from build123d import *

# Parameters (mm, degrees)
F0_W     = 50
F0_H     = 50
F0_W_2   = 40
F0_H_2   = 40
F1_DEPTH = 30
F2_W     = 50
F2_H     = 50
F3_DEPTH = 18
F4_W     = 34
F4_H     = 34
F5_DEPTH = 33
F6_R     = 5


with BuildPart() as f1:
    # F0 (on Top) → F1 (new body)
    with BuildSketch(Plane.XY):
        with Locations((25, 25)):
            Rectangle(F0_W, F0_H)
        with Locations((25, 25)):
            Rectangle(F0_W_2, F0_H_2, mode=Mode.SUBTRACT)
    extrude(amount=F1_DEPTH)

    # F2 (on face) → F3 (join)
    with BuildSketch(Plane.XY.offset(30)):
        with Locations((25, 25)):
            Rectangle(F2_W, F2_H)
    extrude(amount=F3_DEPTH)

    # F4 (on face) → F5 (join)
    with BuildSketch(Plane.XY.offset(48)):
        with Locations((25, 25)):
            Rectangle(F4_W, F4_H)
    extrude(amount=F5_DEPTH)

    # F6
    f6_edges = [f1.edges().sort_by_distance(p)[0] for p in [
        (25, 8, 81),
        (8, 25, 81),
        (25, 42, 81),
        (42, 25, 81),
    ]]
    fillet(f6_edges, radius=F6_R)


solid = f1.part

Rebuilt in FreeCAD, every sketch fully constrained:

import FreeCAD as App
import Part
import Sketcher
Q = App.Units.Quantity


def edges_at(feature, points):
    """Names of the edges that pass closest to the given points."""
    edges = feature.Shape.Edges
    near = lambda p: min(range(len(edges)), key=lambda i: edges[i].distToShape(Part.Vertex(*p))[0])
    return sorted({f"Edge{near(p) + 1}" for p in points})


def add_polygon(sketch, points):
    """Adds a closed chain of lines whose ends are joined by coincident constraints."""
    first, n = sketch.GeometryCount, len(points)
    for a, b in zip(points, points[1:] + points[:1]):
        sketch.addGeometry(Part.LineSegment(App.Vector(*a, 0), App.Vector(*b, 0)), False)
    for i in range(n):
        sketch.addConstraint(Sketcher.Constraint("Coincident", first + i, 2, first + (i + 1) % n, 1))

doc = App.newDocument("Part")
body = doc.addObject("PartDesign::Body", "Body")

sketch1 = doc.addObject("Sketcher::SketchObject", "Sketch")
body.addObject(sketch1)
sketch1.AttachmentSupport = (doc.XY_Plane, [""])
sketch1.MapMode = "FlatFace"
add_polygon(sketch1, [(0, 50), (0, 0), (50, 0), (50, 50)])
add_polygon(sketch1, [(45, 5), (5, 5), (5, 45), (45, 45)])
sketch1.addConstraint([
    Sketcher.Constraint("Vertical", 0),
    Sketcher.Constraint("Horizontal", 1),
    Sketcher.Constraint("Vertical", 2),
    Sketcher.Constraint("Horizontal", 3),
    Sketcher.Constraint("Horizontal", 4),
    Sketcher.Constraint("Vertical", 5),
    Sketcher.Constraint("Horizontal", 6),
    Sketcher.Constraint("Vertical", 7),
    Sketcher.Constraint("Coincident", 0, 2, -1, 1),
    Sketcher.Constraint("Equal", 3, 0),
    Sketcher.Constraint("Equal", 6, 5),
    Sketcher.Constraint("DistanceX", 1, 1, 1, 2, Q("50 mm")),
    Sketcher.Constraint("DistanceX", 4, 2, 4, 1, Q("40 mm")),
    Sketcher.Constraint("DistanceX", -1, 1, 4, 2, Q("5 mm")),
    Sketcher.Constraint("DistanceY", -1, 1, 4, 2, Q("5 mm")),
])
pad1 = doc.addObject("PartDesign::Pad", "Pad")
body.addObject(pad1)
pad1.Profile = sketch1
pad1.Length = 30

sketch2 = doc.addObject("Sketcher::SketchObject", "Sketch001")
body.addObject(sketch2)
sketch2.AttachmentSupport = (doc.XY_Plane, [""])
sketch2.MapMode = "FlatFace"
sketch2.AttachmentOffset = App.Placement(App.Vector(0, 0, 30), App.Rotation())
add_polygon(sketch2, [(0, 50), (0, 0), (50, 0), (50, 50)])
sketch2.addConstraint([
    Sketcher.Constraint("Vertical", 0),
    Sketcher.Constraint("Horizontal", 1),
    Sketcher.Constraint("Vertical", 2),
    Sketcher.Constraint("Horizontal", 3),
    Sketcher.Constraint("Coincident", 0, 2, -1, 1),
    Sketcher.Constraint("Equal", 3, 0),
    Sketcher.Constraint("DistanceX", 1, 1, 1, 2, Q("50 mm")),
])
pad2 = doc.addObject("PartDesign::Pad", "Pad001")
body.addObject(pad2)
pad2.Profile = sketch2
pad2.Length = 18

sketch3 = doc.addObject("Sketcher::SketchObject", "Sketch002")
body.addObject(sketch3)
sketch3.AttachmentSupport = (doc.XY_Plane, [""])
sketch3.MapMode = "FlatFace"
sketch3.AttachmentOffset = App.Placement(App.Vector(0, 0, 48), App.Rotation())
add_polygon(sketch3, [(8, 42), (8, 8), (42, 8), (42, 42)])
sketch3.addConstraint([
    Sketcher.Constraint("Vertical", 0),
    Sketcher.Constraint("Horizontal", 1),
    Sketcher.Constraint("Vertical", 2),
    Sketcher.Constraint("Horizontal", 3),
    Sketcher.Constraint("Equal", 3, 0),
    Sketcher.Constraint("DistanceX", 1, 1, 1, 2, Q("34 mm")),
    Sketcher.Constraint("DistanceX", -1, 1, 0, 2, Q("8 mm")),
    Sketcher.Constraint("DistanceY", -1, 1, 0, 2, Q("8 mm")),
])
pad3 = doc.addObject("PartDesign::Pad", "Pad002")
body.addObject(pad3)
pad3.Profile = sketch3
pad3.Length = 33
doc.recompute()

fillet = doc.addObject("PartDesign::Fillet", "Fillet")
body.addObject(fillet)
fillet.Base = (pad3, edges_at(pad3, [
    (25, 8, 81),
    (8, 25, 81),
    (25, 42, 81),
    (42, 25, 81),
]))
fillet.Radius = 5

doc.recompute()
